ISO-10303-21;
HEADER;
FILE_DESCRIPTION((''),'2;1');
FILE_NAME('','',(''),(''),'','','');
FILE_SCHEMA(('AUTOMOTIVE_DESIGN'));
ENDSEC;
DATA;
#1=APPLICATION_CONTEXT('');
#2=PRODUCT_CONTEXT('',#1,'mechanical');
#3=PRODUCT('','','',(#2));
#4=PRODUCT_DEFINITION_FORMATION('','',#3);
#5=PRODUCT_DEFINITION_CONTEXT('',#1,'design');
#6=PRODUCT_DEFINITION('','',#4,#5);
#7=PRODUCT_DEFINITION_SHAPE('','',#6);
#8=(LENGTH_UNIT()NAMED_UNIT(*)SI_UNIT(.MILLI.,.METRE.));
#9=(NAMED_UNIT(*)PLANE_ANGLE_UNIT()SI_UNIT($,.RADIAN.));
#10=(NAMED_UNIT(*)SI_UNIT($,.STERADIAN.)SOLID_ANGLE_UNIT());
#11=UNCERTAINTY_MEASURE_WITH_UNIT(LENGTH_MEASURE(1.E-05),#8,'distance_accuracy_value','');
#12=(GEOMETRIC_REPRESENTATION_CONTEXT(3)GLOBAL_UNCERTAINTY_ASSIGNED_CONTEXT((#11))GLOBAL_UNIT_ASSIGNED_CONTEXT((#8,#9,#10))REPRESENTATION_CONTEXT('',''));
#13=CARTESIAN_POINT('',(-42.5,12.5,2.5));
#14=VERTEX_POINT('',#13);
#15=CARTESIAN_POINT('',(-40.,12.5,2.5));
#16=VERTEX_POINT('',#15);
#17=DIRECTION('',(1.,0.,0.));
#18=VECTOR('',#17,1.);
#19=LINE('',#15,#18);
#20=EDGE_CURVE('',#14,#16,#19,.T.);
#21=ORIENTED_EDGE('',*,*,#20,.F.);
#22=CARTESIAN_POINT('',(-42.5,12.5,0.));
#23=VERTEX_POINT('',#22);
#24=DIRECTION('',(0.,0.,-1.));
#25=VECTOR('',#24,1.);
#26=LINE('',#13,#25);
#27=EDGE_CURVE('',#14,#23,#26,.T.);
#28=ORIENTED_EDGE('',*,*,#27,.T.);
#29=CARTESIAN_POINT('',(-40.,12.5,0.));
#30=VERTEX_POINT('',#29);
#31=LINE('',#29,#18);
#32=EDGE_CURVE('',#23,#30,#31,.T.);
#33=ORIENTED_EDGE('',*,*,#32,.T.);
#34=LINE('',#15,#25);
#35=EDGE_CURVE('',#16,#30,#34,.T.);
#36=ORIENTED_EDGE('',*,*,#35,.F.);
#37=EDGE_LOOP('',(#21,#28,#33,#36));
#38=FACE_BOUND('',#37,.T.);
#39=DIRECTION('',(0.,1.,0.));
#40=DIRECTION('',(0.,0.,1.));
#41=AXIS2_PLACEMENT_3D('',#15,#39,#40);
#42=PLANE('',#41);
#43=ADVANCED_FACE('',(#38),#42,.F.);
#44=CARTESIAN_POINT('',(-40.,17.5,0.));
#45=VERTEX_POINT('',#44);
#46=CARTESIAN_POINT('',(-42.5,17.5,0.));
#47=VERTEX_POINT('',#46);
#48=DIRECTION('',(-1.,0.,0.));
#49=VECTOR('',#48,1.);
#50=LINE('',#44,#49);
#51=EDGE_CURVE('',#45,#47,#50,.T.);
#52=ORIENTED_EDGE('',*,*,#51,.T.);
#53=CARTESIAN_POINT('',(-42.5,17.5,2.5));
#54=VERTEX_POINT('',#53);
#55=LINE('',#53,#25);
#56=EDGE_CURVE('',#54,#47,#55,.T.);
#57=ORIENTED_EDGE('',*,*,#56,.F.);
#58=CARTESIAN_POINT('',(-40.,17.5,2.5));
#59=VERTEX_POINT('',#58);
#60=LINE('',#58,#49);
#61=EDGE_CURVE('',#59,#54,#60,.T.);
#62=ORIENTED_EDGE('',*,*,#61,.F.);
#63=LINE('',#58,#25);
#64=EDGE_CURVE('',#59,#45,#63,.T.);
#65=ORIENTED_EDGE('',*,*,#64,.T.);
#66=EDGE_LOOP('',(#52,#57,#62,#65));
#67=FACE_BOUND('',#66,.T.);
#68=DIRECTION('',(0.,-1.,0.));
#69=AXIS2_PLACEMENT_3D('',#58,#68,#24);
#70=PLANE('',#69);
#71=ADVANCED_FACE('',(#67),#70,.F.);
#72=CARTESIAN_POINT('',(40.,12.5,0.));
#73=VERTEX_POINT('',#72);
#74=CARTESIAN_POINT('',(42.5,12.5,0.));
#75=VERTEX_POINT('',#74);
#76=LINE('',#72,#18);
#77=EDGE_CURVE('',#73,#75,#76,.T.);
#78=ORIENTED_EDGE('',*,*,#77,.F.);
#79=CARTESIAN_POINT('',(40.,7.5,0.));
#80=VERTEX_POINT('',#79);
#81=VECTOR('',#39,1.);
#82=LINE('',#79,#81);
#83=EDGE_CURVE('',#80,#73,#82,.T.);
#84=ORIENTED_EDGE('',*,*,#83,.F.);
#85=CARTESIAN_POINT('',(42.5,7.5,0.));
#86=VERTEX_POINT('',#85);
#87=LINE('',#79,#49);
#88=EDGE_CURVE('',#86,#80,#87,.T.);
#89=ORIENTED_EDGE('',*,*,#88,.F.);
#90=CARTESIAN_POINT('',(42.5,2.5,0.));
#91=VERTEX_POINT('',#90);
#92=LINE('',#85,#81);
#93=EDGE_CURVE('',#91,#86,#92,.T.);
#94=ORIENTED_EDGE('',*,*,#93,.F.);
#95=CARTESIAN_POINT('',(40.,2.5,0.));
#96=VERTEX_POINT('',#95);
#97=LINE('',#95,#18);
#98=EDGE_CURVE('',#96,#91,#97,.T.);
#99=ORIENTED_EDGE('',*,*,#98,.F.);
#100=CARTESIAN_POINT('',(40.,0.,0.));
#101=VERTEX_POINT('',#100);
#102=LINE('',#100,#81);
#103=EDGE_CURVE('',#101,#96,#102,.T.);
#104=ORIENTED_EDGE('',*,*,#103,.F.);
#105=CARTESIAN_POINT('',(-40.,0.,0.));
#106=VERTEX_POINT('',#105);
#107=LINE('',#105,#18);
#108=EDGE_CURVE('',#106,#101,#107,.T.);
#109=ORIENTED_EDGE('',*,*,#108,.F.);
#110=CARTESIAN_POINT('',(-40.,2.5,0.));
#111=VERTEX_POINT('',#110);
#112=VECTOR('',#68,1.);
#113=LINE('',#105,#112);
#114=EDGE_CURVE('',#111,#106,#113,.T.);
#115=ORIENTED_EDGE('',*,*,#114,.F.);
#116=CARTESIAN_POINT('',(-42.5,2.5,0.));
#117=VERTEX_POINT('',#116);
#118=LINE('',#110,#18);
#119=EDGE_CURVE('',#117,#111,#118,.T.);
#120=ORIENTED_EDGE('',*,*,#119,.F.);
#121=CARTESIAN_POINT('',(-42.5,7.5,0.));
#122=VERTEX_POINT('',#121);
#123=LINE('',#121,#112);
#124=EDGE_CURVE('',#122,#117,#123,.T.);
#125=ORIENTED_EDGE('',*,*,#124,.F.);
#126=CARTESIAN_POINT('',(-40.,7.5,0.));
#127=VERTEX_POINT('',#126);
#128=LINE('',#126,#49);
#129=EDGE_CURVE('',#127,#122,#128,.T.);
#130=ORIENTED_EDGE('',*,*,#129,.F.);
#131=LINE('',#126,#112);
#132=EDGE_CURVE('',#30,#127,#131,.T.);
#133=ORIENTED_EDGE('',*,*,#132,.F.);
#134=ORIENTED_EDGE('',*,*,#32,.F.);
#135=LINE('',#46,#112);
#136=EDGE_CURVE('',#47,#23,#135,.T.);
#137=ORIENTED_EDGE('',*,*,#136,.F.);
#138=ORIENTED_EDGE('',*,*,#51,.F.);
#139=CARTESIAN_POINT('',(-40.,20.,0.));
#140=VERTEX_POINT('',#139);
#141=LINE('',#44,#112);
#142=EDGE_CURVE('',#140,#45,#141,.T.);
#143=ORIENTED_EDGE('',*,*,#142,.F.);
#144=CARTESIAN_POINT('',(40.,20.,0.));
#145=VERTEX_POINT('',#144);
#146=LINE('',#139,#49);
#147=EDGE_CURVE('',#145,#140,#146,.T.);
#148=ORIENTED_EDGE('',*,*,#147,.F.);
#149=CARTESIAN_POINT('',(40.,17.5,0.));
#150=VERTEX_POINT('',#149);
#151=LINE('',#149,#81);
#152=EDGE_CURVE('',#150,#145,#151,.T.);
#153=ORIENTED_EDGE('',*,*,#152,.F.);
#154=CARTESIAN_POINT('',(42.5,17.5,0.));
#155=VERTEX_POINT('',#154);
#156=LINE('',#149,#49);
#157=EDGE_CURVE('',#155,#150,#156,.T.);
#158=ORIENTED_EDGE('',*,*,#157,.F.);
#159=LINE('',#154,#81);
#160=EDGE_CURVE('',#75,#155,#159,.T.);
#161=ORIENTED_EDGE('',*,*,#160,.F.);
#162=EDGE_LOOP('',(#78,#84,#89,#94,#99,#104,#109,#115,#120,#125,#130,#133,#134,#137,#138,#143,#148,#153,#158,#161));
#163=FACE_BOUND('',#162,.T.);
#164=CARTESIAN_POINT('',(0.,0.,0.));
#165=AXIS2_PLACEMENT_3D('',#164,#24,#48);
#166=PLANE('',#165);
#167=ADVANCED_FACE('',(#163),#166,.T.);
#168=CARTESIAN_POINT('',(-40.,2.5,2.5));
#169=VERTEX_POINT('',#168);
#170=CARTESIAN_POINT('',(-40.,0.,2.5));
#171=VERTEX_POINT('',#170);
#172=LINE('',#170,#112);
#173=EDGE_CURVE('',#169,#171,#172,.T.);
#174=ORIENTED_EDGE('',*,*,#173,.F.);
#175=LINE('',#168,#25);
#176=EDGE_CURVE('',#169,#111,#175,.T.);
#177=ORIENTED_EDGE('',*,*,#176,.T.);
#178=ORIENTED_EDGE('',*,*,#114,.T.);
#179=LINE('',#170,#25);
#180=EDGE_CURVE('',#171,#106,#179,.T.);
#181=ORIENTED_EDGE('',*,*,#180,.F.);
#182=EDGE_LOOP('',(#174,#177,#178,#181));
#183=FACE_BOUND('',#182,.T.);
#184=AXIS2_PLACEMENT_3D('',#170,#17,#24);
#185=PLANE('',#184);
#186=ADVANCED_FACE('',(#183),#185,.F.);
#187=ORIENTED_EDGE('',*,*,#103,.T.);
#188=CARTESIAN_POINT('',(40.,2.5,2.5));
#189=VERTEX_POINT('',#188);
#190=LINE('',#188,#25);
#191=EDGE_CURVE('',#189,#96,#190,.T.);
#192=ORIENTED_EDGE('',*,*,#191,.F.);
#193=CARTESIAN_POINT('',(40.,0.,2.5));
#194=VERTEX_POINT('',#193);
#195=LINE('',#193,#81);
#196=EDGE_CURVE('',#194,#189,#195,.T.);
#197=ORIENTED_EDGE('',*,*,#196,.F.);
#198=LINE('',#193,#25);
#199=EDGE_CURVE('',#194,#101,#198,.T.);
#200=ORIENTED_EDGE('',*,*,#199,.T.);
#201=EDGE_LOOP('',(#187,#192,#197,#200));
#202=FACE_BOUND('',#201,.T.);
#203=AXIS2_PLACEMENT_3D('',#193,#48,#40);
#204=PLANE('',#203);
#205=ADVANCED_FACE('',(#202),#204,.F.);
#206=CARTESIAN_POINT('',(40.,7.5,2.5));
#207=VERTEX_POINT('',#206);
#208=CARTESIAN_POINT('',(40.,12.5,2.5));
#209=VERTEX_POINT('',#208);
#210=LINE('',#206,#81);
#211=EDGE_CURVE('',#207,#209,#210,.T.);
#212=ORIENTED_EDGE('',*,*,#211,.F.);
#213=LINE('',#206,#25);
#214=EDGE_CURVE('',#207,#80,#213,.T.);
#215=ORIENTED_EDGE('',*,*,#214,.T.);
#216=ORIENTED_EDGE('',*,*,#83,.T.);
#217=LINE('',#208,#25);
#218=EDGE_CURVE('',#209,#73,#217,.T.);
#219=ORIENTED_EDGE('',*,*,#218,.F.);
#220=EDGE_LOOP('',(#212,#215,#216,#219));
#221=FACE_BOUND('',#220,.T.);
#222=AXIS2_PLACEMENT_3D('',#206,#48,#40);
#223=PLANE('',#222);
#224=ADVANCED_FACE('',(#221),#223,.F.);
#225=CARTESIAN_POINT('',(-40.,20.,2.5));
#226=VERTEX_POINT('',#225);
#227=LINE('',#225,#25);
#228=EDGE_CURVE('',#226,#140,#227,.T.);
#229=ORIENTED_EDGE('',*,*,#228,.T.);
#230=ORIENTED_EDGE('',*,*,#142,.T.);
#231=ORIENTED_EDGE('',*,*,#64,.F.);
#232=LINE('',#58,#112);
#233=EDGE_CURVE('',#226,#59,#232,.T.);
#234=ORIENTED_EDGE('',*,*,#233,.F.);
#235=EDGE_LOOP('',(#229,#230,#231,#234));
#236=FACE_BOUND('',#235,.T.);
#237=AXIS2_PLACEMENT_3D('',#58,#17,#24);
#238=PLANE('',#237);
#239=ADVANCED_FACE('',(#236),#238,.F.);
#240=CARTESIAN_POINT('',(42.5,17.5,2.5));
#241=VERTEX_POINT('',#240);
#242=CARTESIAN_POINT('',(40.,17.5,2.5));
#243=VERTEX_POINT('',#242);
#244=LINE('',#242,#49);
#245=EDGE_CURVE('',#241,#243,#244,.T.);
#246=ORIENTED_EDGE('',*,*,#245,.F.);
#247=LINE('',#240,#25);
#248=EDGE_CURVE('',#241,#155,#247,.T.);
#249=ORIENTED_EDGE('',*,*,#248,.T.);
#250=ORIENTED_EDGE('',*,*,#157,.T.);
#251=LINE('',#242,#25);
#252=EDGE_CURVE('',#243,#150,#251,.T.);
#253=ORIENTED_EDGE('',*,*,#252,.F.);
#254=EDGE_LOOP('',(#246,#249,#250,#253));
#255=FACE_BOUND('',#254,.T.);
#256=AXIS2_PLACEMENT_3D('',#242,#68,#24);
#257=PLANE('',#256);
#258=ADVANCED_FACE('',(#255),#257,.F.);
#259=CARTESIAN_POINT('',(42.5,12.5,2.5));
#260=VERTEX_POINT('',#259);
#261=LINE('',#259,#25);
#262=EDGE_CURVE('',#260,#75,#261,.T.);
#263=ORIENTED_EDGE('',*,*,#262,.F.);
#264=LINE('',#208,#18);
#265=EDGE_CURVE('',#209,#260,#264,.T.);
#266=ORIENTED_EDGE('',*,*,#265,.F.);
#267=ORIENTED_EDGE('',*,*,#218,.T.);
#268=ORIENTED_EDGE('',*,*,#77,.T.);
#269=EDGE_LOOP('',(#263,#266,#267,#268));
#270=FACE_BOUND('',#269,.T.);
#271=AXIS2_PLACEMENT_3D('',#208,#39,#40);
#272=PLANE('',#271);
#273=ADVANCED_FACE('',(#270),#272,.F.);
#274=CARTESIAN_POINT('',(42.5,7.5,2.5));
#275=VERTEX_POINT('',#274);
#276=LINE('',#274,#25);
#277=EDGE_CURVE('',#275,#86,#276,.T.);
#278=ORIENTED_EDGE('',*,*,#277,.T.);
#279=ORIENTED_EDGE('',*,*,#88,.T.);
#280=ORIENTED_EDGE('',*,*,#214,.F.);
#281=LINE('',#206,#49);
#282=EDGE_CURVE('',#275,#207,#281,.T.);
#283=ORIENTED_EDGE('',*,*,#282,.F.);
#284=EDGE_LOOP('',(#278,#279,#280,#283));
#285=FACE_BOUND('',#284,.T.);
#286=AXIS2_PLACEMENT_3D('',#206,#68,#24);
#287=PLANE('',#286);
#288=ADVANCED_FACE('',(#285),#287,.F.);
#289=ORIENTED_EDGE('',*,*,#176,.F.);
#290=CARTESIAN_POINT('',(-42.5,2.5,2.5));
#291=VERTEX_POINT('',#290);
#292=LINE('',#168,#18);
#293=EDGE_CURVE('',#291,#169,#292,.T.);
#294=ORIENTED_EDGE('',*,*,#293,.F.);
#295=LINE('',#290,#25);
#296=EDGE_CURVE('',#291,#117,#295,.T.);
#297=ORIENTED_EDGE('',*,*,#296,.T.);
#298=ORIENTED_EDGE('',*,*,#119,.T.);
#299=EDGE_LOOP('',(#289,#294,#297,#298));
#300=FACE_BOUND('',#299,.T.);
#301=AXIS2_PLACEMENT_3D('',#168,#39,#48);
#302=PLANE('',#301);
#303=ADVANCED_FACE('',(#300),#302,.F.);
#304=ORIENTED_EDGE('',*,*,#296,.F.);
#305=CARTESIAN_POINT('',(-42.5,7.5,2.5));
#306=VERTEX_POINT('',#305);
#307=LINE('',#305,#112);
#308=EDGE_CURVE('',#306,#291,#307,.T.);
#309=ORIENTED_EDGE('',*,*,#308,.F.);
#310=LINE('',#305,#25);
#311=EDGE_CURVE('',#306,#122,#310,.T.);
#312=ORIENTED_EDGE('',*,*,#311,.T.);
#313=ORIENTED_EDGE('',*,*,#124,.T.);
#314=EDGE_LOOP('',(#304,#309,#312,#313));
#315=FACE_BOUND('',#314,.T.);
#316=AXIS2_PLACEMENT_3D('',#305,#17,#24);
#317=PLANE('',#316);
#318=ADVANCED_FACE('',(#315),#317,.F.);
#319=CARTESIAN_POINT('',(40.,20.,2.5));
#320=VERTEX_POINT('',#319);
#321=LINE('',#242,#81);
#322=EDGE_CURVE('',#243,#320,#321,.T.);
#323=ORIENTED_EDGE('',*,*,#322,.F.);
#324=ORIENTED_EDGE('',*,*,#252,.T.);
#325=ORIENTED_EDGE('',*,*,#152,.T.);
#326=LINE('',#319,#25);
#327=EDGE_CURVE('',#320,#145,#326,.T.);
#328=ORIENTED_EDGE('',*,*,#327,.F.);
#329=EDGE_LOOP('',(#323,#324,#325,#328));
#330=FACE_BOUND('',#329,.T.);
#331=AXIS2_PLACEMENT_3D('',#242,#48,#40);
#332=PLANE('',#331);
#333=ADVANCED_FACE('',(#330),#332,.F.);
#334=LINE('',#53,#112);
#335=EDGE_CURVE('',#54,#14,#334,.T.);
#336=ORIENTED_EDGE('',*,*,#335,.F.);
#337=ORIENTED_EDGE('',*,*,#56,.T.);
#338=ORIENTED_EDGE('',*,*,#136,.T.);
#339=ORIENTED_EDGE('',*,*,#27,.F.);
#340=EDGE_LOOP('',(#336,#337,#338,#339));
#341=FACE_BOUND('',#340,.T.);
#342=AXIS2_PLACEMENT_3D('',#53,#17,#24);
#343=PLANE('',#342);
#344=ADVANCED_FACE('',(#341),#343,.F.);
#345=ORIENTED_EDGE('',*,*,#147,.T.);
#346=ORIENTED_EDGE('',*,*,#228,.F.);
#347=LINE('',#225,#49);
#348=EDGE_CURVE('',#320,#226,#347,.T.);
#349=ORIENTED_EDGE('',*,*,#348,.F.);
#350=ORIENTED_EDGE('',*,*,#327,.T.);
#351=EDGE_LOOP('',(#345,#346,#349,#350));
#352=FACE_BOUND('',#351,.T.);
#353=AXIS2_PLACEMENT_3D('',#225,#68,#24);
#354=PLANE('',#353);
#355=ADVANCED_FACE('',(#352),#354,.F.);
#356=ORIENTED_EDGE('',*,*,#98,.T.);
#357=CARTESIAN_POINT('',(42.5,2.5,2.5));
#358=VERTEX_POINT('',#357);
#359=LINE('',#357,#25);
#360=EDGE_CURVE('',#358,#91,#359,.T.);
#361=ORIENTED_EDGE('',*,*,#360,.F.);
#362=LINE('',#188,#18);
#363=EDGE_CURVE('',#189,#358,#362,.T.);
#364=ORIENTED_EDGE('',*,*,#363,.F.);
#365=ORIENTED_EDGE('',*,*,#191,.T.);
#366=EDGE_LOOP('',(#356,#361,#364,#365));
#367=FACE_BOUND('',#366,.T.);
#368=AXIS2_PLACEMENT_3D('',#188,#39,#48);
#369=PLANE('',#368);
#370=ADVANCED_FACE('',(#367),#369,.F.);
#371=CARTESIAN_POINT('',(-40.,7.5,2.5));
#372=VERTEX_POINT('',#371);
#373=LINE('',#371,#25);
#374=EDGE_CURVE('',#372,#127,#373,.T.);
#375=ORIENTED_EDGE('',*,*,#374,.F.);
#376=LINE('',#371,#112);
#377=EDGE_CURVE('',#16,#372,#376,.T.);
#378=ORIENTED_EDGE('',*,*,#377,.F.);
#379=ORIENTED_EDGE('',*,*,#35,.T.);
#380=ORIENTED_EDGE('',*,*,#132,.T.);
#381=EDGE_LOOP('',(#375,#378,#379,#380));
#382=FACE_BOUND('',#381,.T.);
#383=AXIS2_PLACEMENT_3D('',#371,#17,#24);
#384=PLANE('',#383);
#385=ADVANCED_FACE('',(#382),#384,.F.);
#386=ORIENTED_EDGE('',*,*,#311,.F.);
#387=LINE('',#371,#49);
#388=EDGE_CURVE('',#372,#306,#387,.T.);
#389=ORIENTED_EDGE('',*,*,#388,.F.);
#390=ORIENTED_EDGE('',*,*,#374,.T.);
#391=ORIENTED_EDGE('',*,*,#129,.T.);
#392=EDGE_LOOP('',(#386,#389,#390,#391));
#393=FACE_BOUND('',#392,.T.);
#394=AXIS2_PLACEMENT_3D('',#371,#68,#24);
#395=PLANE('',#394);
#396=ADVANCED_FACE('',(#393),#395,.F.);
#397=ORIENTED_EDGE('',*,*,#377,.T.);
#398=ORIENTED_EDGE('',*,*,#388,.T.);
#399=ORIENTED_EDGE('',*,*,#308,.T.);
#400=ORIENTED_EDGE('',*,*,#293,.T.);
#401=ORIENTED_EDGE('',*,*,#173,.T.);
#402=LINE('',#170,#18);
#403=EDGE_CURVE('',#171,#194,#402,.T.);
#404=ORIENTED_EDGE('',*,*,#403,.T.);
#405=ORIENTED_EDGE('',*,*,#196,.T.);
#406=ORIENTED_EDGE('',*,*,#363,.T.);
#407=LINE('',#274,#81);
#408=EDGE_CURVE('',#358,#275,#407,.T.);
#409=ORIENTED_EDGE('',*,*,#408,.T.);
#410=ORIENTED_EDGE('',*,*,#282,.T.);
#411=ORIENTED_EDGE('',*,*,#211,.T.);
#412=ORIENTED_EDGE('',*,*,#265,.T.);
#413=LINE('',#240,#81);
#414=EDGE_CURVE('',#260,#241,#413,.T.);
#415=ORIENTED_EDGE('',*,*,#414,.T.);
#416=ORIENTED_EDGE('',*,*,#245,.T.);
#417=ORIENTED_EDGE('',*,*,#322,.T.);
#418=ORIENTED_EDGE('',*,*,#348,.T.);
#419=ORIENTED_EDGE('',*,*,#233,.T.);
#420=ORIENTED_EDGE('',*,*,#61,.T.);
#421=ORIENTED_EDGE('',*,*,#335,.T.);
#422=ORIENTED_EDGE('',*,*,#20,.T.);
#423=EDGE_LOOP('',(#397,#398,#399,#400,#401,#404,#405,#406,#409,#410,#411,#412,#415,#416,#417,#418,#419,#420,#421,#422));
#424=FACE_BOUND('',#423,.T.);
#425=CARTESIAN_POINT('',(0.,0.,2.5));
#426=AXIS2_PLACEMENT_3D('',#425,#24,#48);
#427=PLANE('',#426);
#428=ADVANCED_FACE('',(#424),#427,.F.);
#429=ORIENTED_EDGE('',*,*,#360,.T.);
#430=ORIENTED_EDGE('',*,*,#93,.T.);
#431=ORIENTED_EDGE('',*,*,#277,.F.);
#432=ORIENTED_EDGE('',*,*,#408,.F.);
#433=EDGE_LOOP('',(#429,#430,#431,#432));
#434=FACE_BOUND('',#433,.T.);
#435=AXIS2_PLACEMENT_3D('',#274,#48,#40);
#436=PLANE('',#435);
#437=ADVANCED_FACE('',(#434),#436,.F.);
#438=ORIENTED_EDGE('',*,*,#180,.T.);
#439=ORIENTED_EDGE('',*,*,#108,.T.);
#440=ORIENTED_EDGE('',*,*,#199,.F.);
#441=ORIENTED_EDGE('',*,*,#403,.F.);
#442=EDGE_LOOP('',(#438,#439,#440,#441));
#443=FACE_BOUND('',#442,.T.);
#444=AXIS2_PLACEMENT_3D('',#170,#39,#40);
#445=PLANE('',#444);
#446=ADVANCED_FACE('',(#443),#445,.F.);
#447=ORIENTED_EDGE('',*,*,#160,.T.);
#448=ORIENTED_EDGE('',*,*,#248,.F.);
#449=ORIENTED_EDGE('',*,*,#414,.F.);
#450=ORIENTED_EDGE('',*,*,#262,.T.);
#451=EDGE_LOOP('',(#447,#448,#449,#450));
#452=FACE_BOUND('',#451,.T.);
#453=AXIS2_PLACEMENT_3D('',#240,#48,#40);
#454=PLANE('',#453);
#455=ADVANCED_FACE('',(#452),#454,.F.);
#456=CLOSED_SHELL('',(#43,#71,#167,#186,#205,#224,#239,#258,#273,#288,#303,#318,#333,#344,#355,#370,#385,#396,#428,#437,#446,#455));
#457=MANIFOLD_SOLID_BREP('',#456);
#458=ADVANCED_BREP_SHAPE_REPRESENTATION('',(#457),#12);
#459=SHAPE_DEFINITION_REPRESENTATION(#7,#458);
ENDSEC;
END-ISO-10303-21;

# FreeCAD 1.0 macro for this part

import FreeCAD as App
import Part
import Sketcher

V = App.Vector


def add_polygon(sketch, points):
    """Adds a closed chain of lines whose ends are joined by coincident constraints."""
    first, n = sketch.GeometryCount, len(points)
    for a, b in zip(points, points[1:] + points[:1]):
        sketch.addGeometry(Part.LineSegment(App.Vector(*a, 0), App.Vector(*b, 0)), False)
    for i in range(n):
        sketch.addConstraint(Sketcher.Constraint("Coincident", first + i, 2, first + (i + 1) % n, 1))

doc = App.newDocument("Part")
body = doc.addObject("PartDesign::Body", "Body")

# Sketch on XY plane
sketch1 = doc.addObject("Sketcher::SketchObject", "Sketch")
body.addObject(sketch1)
sketch1.AttachmentSupport = (doc.XY_Plane, [""])
sketch1.MapMode = "FlatFace"
add_polygon(sketch1, [(-40, 0), (40, 0), (40, 2.5), (42.5, 2.5), (42.5, 7.5), (40, 7.5), (40, 12.5), (42.5, 12.5), (42.5, 17.5), (40, 17.5), (40, 20), (-40, 20), (-40, 17.5), (-42.5, 17.5), (-42.5, 12.5), (-40, 12.5), (-40, 7.5), (-42.5, 7.5), (-42.5, 2.5), (-40, 2.5)])  # lines 0-19
sketch1.addConstraint([
    Sketcher.Constraint("Horizontal", 0),
    Sketcher.Constraint("Vertical", 1),
    Sketcher.Constraint("Horizontal", 2),
    Sketcher.Constraint("Vertical", 3),
    Sketcher.Constraint("Horizontal", 4),
    Sketcher.Constraint("Vertical", 5),
    Sketcher.Constraint("Horizontal", 6),
    Sketcher.Constraint("Vertical", 7),
    Sketcher.Constraint("Horizontal", 8),
    Sketcher.Constraint("Vertical", 9),
    Sketcher.Constraint("Horizontal", 10),
    Sketcher.Constraint("Vertical", 11),
    Sketcher.Constraint("Horizontal", 12),
    Sketcher.Constraint("Vertical", 13),
    Sketcher.Constraint("Horizontal", 14),
    Sketcher.Constraint("Vertical", 15),
    Sketcher.Constraint("Horizontal", 16),
    Sketcher.Constraint("Vertical", 17),
    Sketcher.Constraint("Horizontal", 18),
    Sketcher.Constraint("Vertical", 19),
    Sketcher.Constraint("Symmetric", 0, 2, 19, 2, -1, 1),
    Sketcher.Constraint("Symmetric", 8, 2, 11, 2, -2),
    Sketcher.Constraint("Symmetric", 6, 2, 13, 2, -2),
    Sketcher.Constraint("Symmetric", 4, 2, 15, 2, -2),
    Sketcher.Constraint("Symmetric", 2, 2, 17, 2, -2),
    Sketcher.Constraint("Vertical", 1, 2, 4, 2),
    Sketcher.Constraint("Vertical", 3, 2, 6, 2),
    Sketcher.Constraint("Vertical", 5, 2, 8, 2),
    Sketcher.Constraint("Equal", 18, 1),
    Sketcher.Constraint("Equal", 3, 5),
    Sketcher.Constraint("Equal", 5, 7),
    Sketcher.Constraint("Equal", 1, 9),
    Sketcher.Constraint("DistanceX", 0, 1, 0, 2, 80.0),
    Sketcher.Constraint("DistanceY", 3, 1, 3, 2, 5.0),
    Sketcher.Constraint("DistanceX", 2, 1, 2, 2, 2.5),
])
pad1 = doc.addObject("PartDesign::Pad", "Pad")
body.addObject(pad1)
pad1.Profile = sketch1
pad1.Length = 2.5

doc.recompute()
